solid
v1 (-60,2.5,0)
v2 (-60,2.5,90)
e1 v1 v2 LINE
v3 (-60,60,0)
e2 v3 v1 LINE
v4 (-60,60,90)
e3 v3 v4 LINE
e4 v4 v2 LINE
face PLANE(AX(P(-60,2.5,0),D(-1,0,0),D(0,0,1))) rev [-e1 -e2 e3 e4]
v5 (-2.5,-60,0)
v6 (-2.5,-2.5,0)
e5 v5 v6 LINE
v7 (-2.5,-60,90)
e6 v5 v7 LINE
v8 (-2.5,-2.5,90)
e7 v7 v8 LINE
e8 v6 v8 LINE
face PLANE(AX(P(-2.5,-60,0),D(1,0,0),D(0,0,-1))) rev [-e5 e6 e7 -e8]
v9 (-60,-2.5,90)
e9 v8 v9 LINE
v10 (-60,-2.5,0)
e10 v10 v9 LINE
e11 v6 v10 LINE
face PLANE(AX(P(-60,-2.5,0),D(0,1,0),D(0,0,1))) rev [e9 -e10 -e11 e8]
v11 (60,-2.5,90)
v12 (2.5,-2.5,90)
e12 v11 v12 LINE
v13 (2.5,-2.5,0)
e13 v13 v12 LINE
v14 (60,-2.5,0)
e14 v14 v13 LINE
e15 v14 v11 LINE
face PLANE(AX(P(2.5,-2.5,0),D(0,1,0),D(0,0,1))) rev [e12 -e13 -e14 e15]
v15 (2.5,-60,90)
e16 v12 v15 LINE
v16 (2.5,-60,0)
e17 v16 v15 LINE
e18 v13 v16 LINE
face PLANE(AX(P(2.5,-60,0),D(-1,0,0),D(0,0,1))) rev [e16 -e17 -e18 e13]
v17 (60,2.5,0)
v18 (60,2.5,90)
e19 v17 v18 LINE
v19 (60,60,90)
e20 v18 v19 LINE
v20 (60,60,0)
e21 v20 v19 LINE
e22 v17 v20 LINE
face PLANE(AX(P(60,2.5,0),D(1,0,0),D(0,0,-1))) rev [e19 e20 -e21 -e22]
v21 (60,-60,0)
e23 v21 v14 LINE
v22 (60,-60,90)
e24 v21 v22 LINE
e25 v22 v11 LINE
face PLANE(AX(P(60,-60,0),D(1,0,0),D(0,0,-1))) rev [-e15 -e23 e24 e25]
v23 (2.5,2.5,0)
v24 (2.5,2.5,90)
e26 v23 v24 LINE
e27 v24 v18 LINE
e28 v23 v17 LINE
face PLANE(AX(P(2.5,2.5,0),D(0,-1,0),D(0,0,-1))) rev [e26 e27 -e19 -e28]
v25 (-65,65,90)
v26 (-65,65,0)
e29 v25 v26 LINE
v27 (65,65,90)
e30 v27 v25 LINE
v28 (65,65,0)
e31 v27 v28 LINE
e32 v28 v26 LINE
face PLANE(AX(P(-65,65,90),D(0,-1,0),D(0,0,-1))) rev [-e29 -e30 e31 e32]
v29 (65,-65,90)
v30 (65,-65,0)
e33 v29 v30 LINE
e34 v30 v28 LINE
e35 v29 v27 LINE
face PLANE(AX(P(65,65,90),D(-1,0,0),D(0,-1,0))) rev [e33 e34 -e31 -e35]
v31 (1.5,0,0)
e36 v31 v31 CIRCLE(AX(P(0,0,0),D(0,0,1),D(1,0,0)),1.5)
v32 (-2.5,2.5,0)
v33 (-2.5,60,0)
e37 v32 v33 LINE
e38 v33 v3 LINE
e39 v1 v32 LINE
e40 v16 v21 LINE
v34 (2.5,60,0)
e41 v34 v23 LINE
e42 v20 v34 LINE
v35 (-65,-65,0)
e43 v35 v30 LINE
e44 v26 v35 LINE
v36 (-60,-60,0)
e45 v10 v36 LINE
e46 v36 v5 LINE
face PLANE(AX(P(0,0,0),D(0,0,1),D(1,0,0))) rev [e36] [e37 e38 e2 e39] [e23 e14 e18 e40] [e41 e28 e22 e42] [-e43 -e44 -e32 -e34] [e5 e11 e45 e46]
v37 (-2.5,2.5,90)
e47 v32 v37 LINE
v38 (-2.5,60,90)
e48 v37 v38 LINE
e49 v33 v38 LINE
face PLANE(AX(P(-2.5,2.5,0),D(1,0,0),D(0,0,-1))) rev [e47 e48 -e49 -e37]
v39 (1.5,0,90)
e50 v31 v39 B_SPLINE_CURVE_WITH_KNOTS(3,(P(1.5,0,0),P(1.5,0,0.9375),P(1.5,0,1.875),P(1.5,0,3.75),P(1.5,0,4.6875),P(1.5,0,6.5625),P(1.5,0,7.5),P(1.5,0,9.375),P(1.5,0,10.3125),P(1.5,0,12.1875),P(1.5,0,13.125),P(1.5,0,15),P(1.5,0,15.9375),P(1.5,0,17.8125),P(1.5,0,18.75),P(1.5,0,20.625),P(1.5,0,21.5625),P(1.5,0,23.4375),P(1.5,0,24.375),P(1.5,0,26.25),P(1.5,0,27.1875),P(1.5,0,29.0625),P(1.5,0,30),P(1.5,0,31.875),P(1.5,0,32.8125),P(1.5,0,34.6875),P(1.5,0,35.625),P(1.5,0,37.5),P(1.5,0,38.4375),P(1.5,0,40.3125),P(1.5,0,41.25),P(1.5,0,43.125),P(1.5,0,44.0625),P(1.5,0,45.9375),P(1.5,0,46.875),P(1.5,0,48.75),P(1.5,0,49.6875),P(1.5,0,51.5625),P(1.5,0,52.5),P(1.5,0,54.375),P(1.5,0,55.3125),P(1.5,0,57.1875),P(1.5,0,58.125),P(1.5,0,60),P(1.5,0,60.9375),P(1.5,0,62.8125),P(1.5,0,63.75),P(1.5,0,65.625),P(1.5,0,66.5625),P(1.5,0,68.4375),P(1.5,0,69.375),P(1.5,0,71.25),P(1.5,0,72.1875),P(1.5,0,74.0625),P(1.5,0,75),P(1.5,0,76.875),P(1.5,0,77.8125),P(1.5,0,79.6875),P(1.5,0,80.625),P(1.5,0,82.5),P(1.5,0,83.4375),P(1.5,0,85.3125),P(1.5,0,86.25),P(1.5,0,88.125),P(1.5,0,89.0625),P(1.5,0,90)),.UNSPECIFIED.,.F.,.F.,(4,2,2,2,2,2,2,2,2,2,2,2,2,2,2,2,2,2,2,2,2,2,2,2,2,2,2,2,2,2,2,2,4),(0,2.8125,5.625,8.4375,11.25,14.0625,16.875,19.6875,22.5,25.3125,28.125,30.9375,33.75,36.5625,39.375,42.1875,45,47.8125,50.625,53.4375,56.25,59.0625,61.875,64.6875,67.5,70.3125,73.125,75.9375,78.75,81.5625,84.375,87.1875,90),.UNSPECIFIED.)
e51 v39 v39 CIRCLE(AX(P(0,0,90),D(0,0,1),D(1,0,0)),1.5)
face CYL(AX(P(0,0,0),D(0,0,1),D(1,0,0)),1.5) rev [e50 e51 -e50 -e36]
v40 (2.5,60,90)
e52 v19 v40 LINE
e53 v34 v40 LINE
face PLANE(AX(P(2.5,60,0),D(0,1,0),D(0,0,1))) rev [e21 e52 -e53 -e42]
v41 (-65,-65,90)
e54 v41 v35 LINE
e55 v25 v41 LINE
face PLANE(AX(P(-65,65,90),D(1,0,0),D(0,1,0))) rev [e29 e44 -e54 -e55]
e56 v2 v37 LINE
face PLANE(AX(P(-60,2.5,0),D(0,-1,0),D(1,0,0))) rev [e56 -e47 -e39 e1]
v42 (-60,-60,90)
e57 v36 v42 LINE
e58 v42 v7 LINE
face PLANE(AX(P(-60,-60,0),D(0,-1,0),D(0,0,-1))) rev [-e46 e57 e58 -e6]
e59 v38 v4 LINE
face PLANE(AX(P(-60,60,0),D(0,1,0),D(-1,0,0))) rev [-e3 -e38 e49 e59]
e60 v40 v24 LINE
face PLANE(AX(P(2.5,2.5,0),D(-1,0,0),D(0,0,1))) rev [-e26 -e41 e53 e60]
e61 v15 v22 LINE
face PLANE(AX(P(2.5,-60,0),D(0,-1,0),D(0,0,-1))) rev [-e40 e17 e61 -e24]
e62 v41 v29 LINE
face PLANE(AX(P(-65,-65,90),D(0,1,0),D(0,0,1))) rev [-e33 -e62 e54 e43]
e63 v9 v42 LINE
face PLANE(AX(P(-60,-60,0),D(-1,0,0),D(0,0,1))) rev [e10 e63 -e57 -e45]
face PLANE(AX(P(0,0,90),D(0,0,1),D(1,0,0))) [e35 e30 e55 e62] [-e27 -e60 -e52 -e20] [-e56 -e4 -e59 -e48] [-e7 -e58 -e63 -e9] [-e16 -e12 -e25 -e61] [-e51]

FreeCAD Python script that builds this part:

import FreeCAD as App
import Part
import Sketcher
from FreeCAD import Vector
Q = App.Units.Quantity


def add_polygon(sketch, points):
    """Adds a closed chain of lines whose ends are joined by coincident constraints."""
    first, n = sketch.GeometryCount, len(points)
    for a, b in zip(points, points[1:] + points[:1]):
        sketch.addGeometry(Part.LineSegment(App.Vector(*a, 0), App.Vector(*b, 0)), False)
    for i in range(n):
        sketch.addConstraint(Sketcher.Constraint("Coincident", first + i, 2, first + (i + 1) % n, 1))

doc = App.newDocument("Part")
body = doc.addObject("PartDesign::Body", "Body")

# Sketch on XY plane
sketch1 = body.newObject("Sketcher::SketchObject", "Sketch")
sketch1.AttachmentSupport = (doc.getObject("XY_Plane"), [""])
sketch1.MapMode = "FlatFace"
add_polygon(sketch1, [(-65, 65), (-65, -65), (65, -65), (65, 65)])  # lines 0-3
sketch1.addConstraint(Sketcher.Constraint("Vertical", 0))
sketch1.addConstraint(Sketcher.Constraint("Horizontal", 1))
sketch1.addConstraint(Sketcher.Constraint("Vertical", 2))
sketch1.addConstraint(Sketcher.Constraint("Horizontal", 3))
sketch1.addConstraint(Sketcher.Constraint("Symmetric", 0, 2, 2, 2, -1, 1))
sketch1.addConstraint(Sketcher.Constraint("Equal", 3, 0))
sketch1.addConstraint(Sketcher.Constraint("DistanceX", 1, 1, 1, 2, Q("130 mm")))
pad1 = body.newObject("PartDesign::Pad", "Pad")
pad1.Profile = sketch1
pad1.Length = 90

# Sketch on XY plane
sketch2 = body.newObject("Sketcher::SketchObject", "Sketch001")
sketch2.AttachmentSupport = (doc.getObject("XY_Plane"), [""])
sketch2.MapMode = "FlatFace"
sketch2.AttachmentOffset = App.Placement(Vector(0, 0, 90), App.Rotation())
add_polygon(sketch2, [(-60, 60), (-60, 2.5), (-2.5, 2.5), (-2.5, 60)])  # lines 0-3
add_polygon(sketch2, [(2.5, 60), (2.5, 2.5), (60, 2.5), (60, 60)])  # lines 4-7
add_polygon(sketch2, [(-60, -2.5), (-60, -60), (-2.5, -60), (-2.5, -2.5)])  # lines 8-11
add_polygon(sketch2, [(2.5, -2.5), (2.5, -60), (60, -60), (60, -2.5)])  # lines 12-15
sketch2.addConstraint(Sketcher.Constraint("Vertical", 0))
sketch2.addConstraint(Sketcher.Constraint("Horizontal", 1))
sketch2.addConstraint(Sketcher.Constraint("Vertical", 2))
sketch2.addConstraint(Sketcher.Constraint("Horizontal", 3))
sketch2.addConstraint(Sketcher.Constraint("Vertical", 4))
sketch2.addConstraint(Sketcher.Constraint("Horizontal", 5))
sketch2.addConstraint(Sketcher.Constraint("Vertical", 6))
sketch2.addConstraint(Sketcher.Constraint("Horizontal", 7))
sketch2.addConstraint(Sketcher.Constraint("Vertical", 8))
sketch2.addConstraint(Sketcher.Constraint("Horizontal", 9))
sketch2.addConstraint(Sketcher.Constraint("Vertical", 10))
sketch2.addConstraint(Sketcher.Constraint("Horizontal", 11))
sketch2.addConstraint(Sketcher.Constraint("Vertical", 12))
sketch2.addConstraint(Sketcher.Constraint("Horizontal", 13))
sketch2.addConstraint(Sketcher.Constraint("Vertical", 14))
sketch2.addConstraint(Sketcher.Constraint("Horizontal", 15))
sketch2.addConstraint(Sketcher.Constraint("Symmetric", 6, 2, 8, 2, -1, 1))
sketch2.addConstraint(Sketcher.Constraint("Symmetric", 4, 2, 10, 2, -1, 1))
sketch2.addConstraint(Sketcher.Constraint("Symmetric", 2, 2, 12, 2, -1, 1))
sketch2.addConstraint(Sketcher.Constraint("Symmetric", 0, 2, 14, 2, -1, 1))
sketch2.addConstraint(Sketcher.Constraint("Symmetric", 1, 2, 4, 2, -2))
sketch2.addConstraint(Sketcher.Constraint("Symmetric", 3, 2, 6, 2, -2))
sketch2.addConstraint(Sketcher.Constraint("Equal", 15, 0))
sketch2.addConstraint(Sketcher.Constraint("DistanceX", 1, 1, 1, 2, Q("57.5 mm")))
sketch2.addConstraint(Sketcher.Constraint("DistanceX", 0, 2, -1, 1, Q("60 mm")))
sketch2.addConstraint(Sketcher.Constraint("DistanceY", -1, 1, 2, 2, Q("60 mm")))
pocket1 = body.newObject("PartDesign::Pocket", "Pocket")
pocket1.Profile = sketch2
pocket1.Length = 90

# Sketch on XY plane
sketch3 = body.newObject("Sketcher::SketchObject", "Sketch002")
sketch3.AttachmentSupport = (doc.getObject("XY_Plane"), [""])
sketch3.MapMode = "FlatFace"
sketch3.AttachmentOffset = App.Placement(Vector(0, 0, 90), App.Rotation())
sketch3.addGeometry(Part.Circle(Vector(0, 0, 0), Vector(0, 0, 1), 1.5), False)
sketch3.addConstraint(Sketcher.Constraint("Coincident", 0, 3, -1, 1))
sketch3.addConstraint(Sketcher.Constraint("Diameter", 0, Q("3 mm")))
pocket2 = body.newObject("PartDesign::Pocket", "Pocket001")
pocket2.Profile = sketch3
pocket2.Length = 90

doc.recompute()
